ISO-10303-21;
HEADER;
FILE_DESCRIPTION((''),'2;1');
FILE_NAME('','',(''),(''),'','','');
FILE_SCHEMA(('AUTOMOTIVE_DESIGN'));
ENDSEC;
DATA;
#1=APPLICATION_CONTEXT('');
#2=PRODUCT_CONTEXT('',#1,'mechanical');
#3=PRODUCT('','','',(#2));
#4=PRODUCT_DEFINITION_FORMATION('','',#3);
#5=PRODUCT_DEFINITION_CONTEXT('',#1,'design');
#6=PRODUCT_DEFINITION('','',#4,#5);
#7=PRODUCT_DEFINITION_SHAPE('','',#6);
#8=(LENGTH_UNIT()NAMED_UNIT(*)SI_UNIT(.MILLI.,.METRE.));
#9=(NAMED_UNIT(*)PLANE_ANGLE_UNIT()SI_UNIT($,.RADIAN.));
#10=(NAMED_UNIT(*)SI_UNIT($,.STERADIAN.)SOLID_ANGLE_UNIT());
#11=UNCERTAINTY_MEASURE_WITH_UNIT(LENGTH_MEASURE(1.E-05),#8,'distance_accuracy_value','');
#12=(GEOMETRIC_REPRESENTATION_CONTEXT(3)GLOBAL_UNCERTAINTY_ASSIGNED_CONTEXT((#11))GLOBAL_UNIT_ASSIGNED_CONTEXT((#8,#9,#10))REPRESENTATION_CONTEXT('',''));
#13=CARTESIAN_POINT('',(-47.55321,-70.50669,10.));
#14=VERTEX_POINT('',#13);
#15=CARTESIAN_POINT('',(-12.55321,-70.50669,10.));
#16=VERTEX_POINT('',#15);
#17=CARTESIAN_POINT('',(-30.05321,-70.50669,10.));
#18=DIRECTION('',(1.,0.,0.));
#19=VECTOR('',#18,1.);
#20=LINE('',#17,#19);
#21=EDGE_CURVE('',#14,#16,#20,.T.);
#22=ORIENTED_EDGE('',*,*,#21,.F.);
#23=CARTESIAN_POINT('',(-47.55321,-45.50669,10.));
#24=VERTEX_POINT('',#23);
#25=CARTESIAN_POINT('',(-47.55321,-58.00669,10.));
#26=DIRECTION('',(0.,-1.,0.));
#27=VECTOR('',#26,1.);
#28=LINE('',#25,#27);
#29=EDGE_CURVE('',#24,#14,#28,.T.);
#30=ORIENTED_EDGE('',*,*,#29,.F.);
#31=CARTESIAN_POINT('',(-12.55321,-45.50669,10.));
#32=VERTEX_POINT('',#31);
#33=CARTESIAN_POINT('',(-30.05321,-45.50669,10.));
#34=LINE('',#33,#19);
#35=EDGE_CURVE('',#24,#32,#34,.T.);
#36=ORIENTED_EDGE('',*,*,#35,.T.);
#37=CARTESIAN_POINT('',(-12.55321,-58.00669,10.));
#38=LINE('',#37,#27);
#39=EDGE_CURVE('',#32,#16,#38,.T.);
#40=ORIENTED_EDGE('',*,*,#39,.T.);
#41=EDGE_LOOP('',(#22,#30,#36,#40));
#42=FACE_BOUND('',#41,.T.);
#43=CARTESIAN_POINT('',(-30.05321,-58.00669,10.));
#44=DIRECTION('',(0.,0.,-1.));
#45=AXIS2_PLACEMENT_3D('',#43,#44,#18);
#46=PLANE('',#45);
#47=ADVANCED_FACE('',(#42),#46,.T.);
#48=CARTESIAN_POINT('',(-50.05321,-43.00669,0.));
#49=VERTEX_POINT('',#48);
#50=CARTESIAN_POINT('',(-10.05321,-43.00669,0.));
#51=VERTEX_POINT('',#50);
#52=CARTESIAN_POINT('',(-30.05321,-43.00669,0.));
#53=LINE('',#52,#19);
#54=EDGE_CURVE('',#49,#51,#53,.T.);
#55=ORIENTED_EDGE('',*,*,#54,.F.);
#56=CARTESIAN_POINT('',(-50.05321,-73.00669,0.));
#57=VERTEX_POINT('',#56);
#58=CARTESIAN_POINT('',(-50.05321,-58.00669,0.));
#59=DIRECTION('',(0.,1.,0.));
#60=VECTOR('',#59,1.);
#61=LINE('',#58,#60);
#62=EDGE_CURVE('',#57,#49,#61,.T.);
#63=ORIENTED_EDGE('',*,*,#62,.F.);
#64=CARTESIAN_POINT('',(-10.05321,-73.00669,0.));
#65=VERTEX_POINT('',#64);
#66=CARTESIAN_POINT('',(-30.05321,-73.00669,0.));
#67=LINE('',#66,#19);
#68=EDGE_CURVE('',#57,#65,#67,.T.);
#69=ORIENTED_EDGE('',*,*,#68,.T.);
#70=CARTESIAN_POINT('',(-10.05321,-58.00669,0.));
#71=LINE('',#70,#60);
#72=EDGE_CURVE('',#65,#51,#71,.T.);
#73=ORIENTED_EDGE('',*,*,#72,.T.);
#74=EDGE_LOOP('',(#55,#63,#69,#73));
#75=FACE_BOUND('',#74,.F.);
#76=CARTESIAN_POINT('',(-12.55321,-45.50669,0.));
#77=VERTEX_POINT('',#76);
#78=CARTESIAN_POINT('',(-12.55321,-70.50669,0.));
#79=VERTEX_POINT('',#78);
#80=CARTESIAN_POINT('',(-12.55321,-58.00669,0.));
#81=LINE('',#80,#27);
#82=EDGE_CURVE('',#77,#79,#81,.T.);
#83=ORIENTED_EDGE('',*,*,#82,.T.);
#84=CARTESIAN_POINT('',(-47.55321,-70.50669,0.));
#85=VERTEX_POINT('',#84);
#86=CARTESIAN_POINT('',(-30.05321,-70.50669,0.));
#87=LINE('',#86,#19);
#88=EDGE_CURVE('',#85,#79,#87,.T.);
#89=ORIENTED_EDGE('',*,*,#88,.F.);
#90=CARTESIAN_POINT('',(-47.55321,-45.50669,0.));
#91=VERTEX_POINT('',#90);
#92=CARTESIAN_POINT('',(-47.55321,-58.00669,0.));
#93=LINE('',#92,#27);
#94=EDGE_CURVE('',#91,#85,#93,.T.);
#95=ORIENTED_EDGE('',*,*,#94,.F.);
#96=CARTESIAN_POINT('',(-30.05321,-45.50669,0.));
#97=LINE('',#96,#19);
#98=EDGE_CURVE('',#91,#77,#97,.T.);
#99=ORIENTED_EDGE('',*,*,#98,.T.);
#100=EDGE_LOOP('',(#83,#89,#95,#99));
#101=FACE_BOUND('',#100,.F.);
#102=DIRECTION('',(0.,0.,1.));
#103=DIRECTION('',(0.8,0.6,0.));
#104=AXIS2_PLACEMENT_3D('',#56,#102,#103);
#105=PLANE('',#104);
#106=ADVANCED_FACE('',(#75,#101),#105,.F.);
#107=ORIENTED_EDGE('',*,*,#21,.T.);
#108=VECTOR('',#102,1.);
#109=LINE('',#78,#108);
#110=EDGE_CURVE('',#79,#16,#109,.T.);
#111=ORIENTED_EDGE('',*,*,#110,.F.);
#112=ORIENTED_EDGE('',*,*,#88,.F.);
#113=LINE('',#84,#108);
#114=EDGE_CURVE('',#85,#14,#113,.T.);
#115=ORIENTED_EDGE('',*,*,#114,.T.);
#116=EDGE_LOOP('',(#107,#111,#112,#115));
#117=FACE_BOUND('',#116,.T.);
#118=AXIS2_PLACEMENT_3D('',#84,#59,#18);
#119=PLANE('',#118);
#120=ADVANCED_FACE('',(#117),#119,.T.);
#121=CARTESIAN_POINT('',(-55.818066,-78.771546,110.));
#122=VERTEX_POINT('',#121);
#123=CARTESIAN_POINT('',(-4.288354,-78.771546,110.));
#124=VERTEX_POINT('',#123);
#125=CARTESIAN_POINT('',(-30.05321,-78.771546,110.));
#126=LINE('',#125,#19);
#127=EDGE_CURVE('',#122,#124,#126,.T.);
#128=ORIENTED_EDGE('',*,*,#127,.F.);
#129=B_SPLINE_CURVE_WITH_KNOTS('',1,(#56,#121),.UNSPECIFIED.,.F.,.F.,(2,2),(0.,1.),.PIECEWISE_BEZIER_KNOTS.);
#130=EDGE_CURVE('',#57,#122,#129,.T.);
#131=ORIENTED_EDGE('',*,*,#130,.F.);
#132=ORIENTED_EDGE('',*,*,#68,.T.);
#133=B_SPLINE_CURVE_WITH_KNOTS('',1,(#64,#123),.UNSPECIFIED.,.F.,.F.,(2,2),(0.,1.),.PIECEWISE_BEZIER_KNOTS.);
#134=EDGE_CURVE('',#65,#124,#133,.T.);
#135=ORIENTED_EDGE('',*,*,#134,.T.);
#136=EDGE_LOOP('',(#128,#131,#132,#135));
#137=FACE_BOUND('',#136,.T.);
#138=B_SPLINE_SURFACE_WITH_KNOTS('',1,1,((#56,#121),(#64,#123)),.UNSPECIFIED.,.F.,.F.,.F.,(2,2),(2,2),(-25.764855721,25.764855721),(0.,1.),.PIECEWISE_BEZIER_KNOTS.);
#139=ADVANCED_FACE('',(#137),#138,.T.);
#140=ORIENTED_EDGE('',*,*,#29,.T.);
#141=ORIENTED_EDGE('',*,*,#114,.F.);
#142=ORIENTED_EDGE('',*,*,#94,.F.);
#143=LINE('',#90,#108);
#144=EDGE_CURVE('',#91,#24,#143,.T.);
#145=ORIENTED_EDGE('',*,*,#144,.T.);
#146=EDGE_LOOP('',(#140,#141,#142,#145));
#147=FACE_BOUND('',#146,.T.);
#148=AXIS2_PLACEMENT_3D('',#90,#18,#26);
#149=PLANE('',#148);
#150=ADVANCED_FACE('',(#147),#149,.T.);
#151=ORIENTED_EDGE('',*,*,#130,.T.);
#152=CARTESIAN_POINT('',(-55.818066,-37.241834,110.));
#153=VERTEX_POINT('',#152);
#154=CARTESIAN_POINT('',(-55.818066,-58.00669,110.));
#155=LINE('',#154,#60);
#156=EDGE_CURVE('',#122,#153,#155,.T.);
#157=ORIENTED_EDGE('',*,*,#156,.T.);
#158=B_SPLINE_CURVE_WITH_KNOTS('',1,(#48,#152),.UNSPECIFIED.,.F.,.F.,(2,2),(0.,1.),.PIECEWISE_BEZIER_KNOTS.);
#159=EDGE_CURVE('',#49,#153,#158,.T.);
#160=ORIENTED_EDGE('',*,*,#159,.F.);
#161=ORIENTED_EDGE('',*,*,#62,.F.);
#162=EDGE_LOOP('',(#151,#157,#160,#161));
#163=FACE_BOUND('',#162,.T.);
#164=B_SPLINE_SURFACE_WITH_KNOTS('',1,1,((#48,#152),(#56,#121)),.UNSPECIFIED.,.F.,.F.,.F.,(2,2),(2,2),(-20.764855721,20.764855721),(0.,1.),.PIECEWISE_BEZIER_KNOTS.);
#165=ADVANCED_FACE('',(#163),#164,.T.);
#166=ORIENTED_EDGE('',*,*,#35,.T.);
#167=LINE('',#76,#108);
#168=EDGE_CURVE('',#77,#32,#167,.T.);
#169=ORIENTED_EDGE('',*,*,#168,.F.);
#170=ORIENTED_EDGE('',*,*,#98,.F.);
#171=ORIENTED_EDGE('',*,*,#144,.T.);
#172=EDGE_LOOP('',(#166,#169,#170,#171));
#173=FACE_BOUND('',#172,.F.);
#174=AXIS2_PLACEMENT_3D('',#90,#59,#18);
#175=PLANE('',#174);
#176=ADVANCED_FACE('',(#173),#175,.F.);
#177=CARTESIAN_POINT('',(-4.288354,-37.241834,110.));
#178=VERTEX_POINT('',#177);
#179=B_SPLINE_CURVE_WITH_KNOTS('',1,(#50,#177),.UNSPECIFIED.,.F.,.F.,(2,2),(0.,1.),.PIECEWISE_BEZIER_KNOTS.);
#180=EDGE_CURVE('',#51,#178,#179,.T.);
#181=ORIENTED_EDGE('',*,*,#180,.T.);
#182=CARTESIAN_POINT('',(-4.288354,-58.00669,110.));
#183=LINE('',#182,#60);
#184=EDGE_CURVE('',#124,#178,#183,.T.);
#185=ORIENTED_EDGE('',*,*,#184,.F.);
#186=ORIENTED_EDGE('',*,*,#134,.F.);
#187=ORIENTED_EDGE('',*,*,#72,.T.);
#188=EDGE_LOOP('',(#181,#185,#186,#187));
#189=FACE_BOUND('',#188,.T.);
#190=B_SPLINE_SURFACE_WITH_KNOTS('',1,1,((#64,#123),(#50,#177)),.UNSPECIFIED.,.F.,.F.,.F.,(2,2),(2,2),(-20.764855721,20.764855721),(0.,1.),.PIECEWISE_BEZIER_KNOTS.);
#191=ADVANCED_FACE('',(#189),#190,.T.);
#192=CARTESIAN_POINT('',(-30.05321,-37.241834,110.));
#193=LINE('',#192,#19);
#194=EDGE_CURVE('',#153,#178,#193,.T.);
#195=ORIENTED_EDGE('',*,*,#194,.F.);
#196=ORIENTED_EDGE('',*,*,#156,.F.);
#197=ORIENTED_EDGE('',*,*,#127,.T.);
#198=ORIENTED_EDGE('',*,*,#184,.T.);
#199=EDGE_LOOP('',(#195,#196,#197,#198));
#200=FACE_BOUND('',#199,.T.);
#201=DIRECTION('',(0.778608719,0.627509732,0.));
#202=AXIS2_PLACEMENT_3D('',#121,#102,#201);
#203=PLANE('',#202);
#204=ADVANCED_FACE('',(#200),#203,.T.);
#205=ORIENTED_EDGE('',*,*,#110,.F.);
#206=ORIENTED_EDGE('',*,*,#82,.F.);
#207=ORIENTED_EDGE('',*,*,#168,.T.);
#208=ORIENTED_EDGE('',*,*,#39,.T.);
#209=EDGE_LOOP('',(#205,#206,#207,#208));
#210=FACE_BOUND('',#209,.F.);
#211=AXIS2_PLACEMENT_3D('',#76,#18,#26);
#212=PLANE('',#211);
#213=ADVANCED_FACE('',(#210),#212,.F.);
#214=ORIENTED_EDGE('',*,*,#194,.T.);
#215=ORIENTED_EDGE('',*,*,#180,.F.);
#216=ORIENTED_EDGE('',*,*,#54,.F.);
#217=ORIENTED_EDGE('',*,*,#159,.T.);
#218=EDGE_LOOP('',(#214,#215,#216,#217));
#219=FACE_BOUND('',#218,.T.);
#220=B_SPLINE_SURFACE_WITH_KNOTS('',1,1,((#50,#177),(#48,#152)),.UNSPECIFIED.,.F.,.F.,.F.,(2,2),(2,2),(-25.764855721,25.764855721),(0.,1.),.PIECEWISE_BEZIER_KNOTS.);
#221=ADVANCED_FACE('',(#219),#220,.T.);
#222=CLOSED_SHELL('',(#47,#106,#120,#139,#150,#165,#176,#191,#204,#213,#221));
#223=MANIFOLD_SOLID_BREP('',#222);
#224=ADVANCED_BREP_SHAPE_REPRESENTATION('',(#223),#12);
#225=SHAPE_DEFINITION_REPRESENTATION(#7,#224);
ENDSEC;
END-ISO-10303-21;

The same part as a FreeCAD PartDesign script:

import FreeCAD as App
import Part
import Sketcher

V = App.Vector
Q = App.Units.Quantity


def add_polygon(sketch, points):
    """Adds a closed chain of lines whose ends are joined by coincident constraints."""
    first, n = sketch.GeometryCount, len(points)
    for a, b in zip(points, points[1:] + points[:1]):
        sketch.addGeometry(Part.LineSegment(App.Vector(*a, 0), App.Vector(*b, 0)), False)
    for i in range(n):
        sketch.addConstraint(Sketcher.Constraint("Coincident", first + i, 2, first + (i + 1) % n, 1))

doc = App.newDocument("Part")
body = doc.addObject("PartDesign::Body", "Body")

# Sketch on XY plane
sketch1 = doc.addObject("Sketcher::SketchObject", "Sketch")
body.addObject(sketch1)
sketch1.AttachmentSupport = (doc.XY_Plane, [""])
sketch1.MapMode = "FlatFace"
add_polygon(sketch1, [(-50, -43), (-50, -73), (-10, -73), (-10, -43)])  # lines 0-3
sketch1.addConstraint([
    Sketcher.Constraint("Vertical", 0),
    Sketcher.Constraint("Horizontal", 1),
    Sketcher.Constraint("Vertical", 2),
    Sketcher.Constraint("Horizontal", 3),
    Sketcher.Constraint("DistanceX", 1, 1, 1, 2, Q("40 mm")),
    Sketcher.Constraint("DistanceY", 0, 2, 0, 1, Q("30 mm")),
    Sketcher.Constraint("DistanceX", 0, 2, -1, 1, Q("50.05321 mm")),
    Sketcher.Constraint("DistanceY", 0, 2, -1, 1, Q("73.00669 mm")),
])
pad1 = doc.addObject("PartDesign::Pad", "Pad")
body.addObject(pad1)
pad1.Profile = sketch1
pad1.Length = 110
pad1.TaperAngle = 3

# Sketch on XY plane
sketch2 = doc.addObject("Sketcher::SketchObject", "Sketch001")
body.addObject(sketch2)
sketch2.AttachmentSupport = (doc.XY_Plane, [""])
sketch2.MapMode = "FlatFace"
add_polygon(sketch2, [(-48, -71), (-48, -46), (-13, -46), (-13, -71)])  # lines 0-3
sketch2.addConstraint([
    Sketcher.Constraint("Vertical", 0),
    Sketcher.Constraint("Horizontal", 1),
    Sketcher.Constraint("Vertical", 2),
    Sketcher.Constraint("Horizontal", 3),
    Sketcher.Constraint("DistanceX", 1, 1, 1, 2, Q("35 mm")),
    Sketcher.Constraint("DistanceY", 0, 1, 0, 2, Q("25 mm")),
    Sketcher.Constraint("DistanceX", 0, 2, -1, 1, Q("47.55321 mm")),
    Sketcher.Constraint("DistanceY", 0, 2, -1, 1, Q("45.50669 mm")),
])
pocket1 = doc.addObject("PartDesign::Pocket", "Pocket")
body.addObject(pocket1)
pocket1.Profile = sketch2
pocket1.Length = 10
pocket1.Reversed = True

doc.recompute()
